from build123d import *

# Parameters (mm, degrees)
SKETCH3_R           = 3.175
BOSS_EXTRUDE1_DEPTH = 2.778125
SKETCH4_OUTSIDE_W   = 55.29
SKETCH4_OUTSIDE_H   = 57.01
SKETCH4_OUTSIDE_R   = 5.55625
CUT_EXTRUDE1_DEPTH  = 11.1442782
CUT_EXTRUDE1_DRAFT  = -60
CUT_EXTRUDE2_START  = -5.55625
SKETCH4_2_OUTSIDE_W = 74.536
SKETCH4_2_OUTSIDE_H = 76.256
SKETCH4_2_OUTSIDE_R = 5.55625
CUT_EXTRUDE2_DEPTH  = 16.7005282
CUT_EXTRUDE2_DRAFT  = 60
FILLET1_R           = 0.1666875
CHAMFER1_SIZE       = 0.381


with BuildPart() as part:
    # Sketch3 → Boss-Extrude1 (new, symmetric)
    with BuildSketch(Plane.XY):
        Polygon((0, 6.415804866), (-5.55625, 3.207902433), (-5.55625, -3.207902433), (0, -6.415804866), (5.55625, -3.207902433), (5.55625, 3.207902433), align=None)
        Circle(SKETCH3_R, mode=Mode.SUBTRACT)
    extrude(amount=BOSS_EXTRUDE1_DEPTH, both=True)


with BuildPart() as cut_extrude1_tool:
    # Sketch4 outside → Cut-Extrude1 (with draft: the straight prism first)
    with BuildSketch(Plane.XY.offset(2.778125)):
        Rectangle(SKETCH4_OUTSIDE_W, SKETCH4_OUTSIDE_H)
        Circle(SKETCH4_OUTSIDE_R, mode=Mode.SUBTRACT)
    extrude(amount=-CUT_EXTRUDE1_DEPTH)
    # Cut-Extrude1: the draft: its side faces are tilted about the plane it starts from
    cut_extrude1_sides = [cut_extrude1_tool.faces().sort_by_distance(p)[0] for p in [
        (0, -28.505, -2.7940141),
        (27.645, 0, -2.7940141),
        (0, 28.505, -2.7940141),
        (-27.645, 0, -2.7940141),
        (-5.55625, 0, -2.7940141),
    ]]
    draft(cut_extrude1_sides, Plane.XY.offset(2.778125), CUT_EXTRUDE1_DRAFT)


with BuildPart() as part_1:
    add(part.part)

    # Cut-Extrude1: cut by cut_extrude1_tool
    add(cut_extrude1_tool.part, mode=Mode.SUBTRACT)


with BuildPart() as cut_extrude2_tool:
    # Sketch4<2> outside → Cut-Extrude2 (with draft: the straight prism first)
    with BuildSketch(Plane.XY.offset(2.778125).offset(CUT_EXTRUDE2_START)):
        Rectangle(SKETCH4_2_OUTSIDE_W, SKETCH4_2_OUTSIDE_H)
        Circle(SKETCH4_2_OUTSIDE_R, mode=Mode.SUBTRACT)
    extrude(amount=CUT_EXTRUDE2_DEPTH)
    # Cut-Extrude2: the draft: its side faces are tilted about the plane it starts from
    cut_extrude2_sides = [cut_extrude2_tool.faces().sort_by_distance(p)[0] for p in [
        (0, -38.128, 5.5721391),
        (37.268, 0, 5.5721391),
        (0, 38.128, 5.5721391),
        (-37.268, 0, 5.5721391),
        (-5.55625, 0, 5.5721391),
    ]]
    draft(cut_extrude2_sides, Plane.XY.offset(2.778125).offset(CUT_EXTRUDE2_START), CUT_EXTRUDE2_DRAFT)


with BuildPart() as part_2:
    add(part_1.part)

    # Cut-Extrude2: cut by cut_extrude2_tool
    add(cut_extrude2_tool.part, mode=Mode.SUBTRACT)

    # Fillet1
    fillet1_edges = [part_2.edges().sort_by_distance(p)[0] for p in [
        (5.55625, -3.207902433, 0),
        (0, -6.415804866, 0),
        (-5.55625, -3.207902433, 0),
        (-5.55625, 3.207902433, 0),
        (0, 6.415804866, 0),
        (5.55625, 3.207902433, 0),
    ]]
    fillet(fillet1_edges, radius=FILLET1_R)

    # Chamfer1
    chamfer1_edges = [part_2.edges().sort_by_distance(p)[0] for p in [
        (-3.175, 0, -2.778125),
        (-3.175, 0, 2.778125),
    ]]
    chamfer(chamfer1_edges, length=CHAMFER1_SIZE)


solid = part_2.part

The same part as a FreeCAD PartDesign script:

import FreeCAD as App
import Part
import Sketcher
Q = App.Units.Quantity


def edges_at(feature, points):
    """Names of the edges that pass closest to the given points."""
    edges = feature.Shape.Edges
    near = lambda p: min(range(len(edges)), key=lambda i: edges[i].distToShape(Part.Vertex(*p))[0])
    return sorted({f"Edge{near(p) + 1}" for p in points})


def faces_at(feature, points):
    """Names of the faces that lie closest to the given points."""
    faces = feature.Shape.Faces
    near = lambda p: min(range(len(faces)), key=lambda i: faces[i].distToShape(Part.Vertex(*p))[0])
    return sorted({f"Face{near(p) + 1}" for p in points})

doc = App.newDocument("Part")
body = doc.addObject("PartDesign::Body", "Body")

sketch1 = body.newObject("Sketcher::SketchObject", "Sketch")
sketch1.AttachmentSupport = (doc.getObject("XY_Plane"), [""])
sketch1.MapMode = "FlatFace"
sketch1.addGeometry([
    Part.LineSegment(App.Vector(0, 6.4, 0), App.Vector(-5.6, 3.2, 0)),
    Part.LineSegment(App.Vector(-5.6, 3.2, 0), App.Vector(-5.6, -3.2, 0)),
    Part.LineSegment(App.Vector(-5.6, -3.2, 0), App.Vector(0, -6.4, 0)),
    Part.LineSegment(App.Vector(0, -6.4, 0), App.Vector(5.6, -3.2, 0)),
    Part.LineSegment(App.Vector(5.6, -3.2, 0), App.Vector(5.6, 3.2, 0)),
    Part.LineSegment(App.Vector(5.6, 3.2, 0), App.Vector(0, 6.4, 0)),
    Part.Circle(App.Vector(0, 0, 0), App.Vector(0, 0, 1), 3.2),
], False)
sketch1.addConstraint([
    Sketcher.Constraint("Coincident", 0, 2, 1, 1),
    Sketcher.Constraint("Coincident", 1, 2, 2, 1),
    Sketcher.Constraint("Coincident", 2, 2, 3, 1),
    Sketcher.Constraint("Coincident", 3, 2, 4, 1),
    Sketcher.Constraint("Coincident", 4, 2, 5, 1),
    Sketcher.Constraint("Coincident", 5, 2, 0, 1),
    Sketcher.Constraint("Vertical", 1),
    Sketcher.Constraint("Vertical", 4),
    Sketcher.Constraint("Coincident", 6, 3, -1, 1),
    Sketcher.Constraint("Symmetric", 0, 2, 3, 2, -1, 1),
    Sketcher.Constraint("Symmetric", 2, 2, 5, 2, -1, 1),
    Sketcher.Constraint("PointOnObject", 2, 2, -2),
    Sketcher.Constraint("Parallel", 2, 5),
    Sketcher.Constraint("Horizontal", 1, 2, 3, 2),
    Sketcher.Constraint("Diameter", 6, Q("0.25 in")),
    Sketcher.Constraint("Angle", 0, Q("-150 deg")),
    Sketcher.Constraint("DistanceX", 0, 2, -1, 1, Q("0.21875 in")),
    Sketcher.Constraint("DistanceY", 1, 2, 1, 1, 6.415805),
])
pad1 = body.newObject("PartDesign::Pad", "Pad")
pad1.Profile = sketch1
pad1.Length = Q("0.21875 in")
pad1.Midplane = True
body2 = doc.addObject("PartDesign::Body", "Body001")

sketch2 = body2.newObject("Sketcher::SketchObject", "Sketch001")
sketch2.AttachmentSupport = (doc.getObject("XY_Plane001"), [""])
sketch2.MapMode = "FlatFace"
sketch2.AttachmentOffset = App.Placement(App.Vector(0, 0, 0.109375 * 25.4), App.Rotation())
sketch2.addGeometry([
    Part.LineSegment(App.Vector(-28, 29, 0), App.Vector(-28, -29, 0)),
    Part.LineSegment(App.Vector(-28, -29, 0), App.Vector(28, -29, 0)),
    Part.LineSegment(App.Vector(28, -29, 0), App.Vector(28, 29, 0)),
    Part.LineSegment(App.Vector(28, 29, 0), App.Vector(-28, 29, 0)),
    Part.Circle(App.Vector(0, 0, 0), App.Vector(0, 0, 1), 6),
], False)
sketch2.addConstraint([
    Sketcher.Constraint("Coincident", 0, 2, 1, 1),
    Sketcher.Constraint("Coincident", 1, 2, 2, 1),
    Sketcher.Constraint("Coincident", 2, 2, 3, 1),
    Sketcher.Constraint("Coincident", 3, 2, 0, 1),
    Sketcher.Constraint("Vertical", 0),
    Sketcher.Constraint("Horizontal", 1),
    Sketcher.Constraint("Vertical", 2),
    Sketcher.Constraint("Horizontal", 3),
    Sketcher.Constraint("Coincident", 4, 3, -1, 1),
    Sketcher.Constraint("Symmetric", 0, 2, 2, 2, -1, 1),
    Sketcher.Constraint("Diameter", 4, Q("0.4375 in")),
    Sketcher.Constraint("DistanceX", 1, 1, 1, 2, 55.29),
    Sketcher.Constraint("DistanceY", 0, 2, 0, 1, 57.01),
])
pad2 = body2.newObject("PartDesign::Pad", "Pad001")
pad2.Profile = sketch2
pad2.Length = 11.144278
pad2.Reversed = True
doc.recompute()

datumplane = body2.newObject("PartDesign::Plane", "DatumPlane")
datumplane.AttachmentSupport = (doc.getObject("XY_Plane001"), [""])
datumplane.MapMode = "FlatFace"
datumplane.AttachmentOffset = App.Placement(App.Vector(0, 0, 0.109375 * 25.4), App.Rotation())
draft = body2.newObject("PartDesign::Draft", "Draft")
draft.Base = (pad2, faces_at(pad2, [
    (0, -28.505, -2.794),
    (27.645, 0, -2.794),
    (0, 28.505, -2.794),
    (-27.645, 0, -2.794),
    (-5.556, 0, -2.794),
]))
draft.NeutralPlane = (datumplane, [""])
draft.Angle = 60
draft.Reversed = True
doc.recompute()

boolean = body.newObject("PartDesign::Boolean", "Boolean")
boolean.Type = "Cut"
boolean.addObjects([body2])
body3 = doc.addObject("PartDesign::Body", "Body002")

sketch3 = body3.newObject("Sketcher::SketchObject", "Sketch002")
sketch3.AttachmentSupport = (doc.getObject("XY_Plane002"), [""])
sketch3.MapMode = "FlatFace"
sketch3.AttachmentOffset = App.Placement(App.Vector(0, 0, -0.109375 * 25.4), App.Rotation())
sketch3.addGeometry([
    Part.LineSegment(App.Vector(-37, 38, 0), App.Vector(-37, -38, 0)),
    Part.LineSegment(App.Vector(-37, -38, 0), App.Vector(37, -38, 0)),
    Part.LineSegment(App.Vector(37, -38, 0), App.Vector(37, 38, 0)),
    Part.LineSegment(App.Vector(37, 38, 0), App.Vector(-37, 38, 0)),
    Part.Circle(App.Vector(0, 0, 0), App.Vector(0, 0, 1), 6),
], False)
sketch3.addConstraint([
    Sketcher.Constraint("Coincident", 0, 2, 1, 1),
    Sketcher.Constraint("Coincident", 1, 2, 2, 1),
    Sketcher.Constraint("Coincident", 2, 2, 3, 1),
    Sketcher.Constraint("Coincident", 3, 2, 0, 1),
    Sketcher.Constraint("Vertical", 0),
    Sketcher.Constraint("Horizontal", 1),
    Sketcher.Constraint("Vertical", 2),
    Sketcher.Constraint("Horizontal", 3),
    Sketcher.Constraint("Coincident", 4, 3, -1, 1),
    Sketcher.Constraint("Symmetric", 0, 2, 2, 2, -1, 1),
    Sketcher.Constraint("Diameter", 4, Q("0.4375 in")),
    Sketcher.Constraint("DistanceX", 1, 1, 1, 2, 74.536),
    Sketcher.Constraint("DistanceY", 0, 2, 0, 1, 76.256),
])
pad3 = body3.newObject("PartDesign::Pad", "Pad002")
pad3.Profile = sketch3
pad3.Length = 16.700528
doc.recompute()

datumplane2 = body3.newObject("PartDesign::Plane", "DatumPlane001")
datumplane2.AttachmentSupport = (doc.getObject("XY_Plane002"), [""])
datumplane2.MapMode = "FlatFace"
datumplane2.AttachmentOffset = App.Placement(App.Vector(0, 0, -0.109375 * 25.4), App.Rotation())
draft2 = body3.newObject("PartDesign::Draft", "Draft001")
draft2.Base = (pad3, faces_at(pad3, [
    (0, -38.128, 5.572),
    (37.268, 0, 5.572),
    (0, 38.128, 5.572),
    (-37.268, 0, 5.572),
    (-5.556, 0, 5.572),
]))
draft2.NeutralPlane = (datumplane2, [""])
draft2.Angle = 60
draft2.Reversed = False
doc.recompute()

boolean2 = body.newObject("PartDesign::Boolean", "Boolean001")
boolean2.Type = "Cut"
boolean2.addObjects([body3])
doc.recompute()

fillet = body.newObject("PartDesign::Fillet", "Fillet")
fillet.Base = (boolean2, edges_at(boolean2, [
    (5.556, -3.208, 0),
    (0, -6.416, 0),
    (-5.556, -3.208, 0),
    (-5.556, 3.208, 0),
    (0, 6.416, 0),
    (5.556, 3.208, 0),
]))
fillet.Radius = 0.166687
doc.recompute()

chamfer = body.newObject("PartDesign::Chamfer", "Chamfer")
chamfer.Base = (fillet, edges_at(fillet, [(-3.175, 0, -2.778), (-3.175, 0, 2.778)]))
chamfer.Size = Q("0.015 in")

doc.recompute()
